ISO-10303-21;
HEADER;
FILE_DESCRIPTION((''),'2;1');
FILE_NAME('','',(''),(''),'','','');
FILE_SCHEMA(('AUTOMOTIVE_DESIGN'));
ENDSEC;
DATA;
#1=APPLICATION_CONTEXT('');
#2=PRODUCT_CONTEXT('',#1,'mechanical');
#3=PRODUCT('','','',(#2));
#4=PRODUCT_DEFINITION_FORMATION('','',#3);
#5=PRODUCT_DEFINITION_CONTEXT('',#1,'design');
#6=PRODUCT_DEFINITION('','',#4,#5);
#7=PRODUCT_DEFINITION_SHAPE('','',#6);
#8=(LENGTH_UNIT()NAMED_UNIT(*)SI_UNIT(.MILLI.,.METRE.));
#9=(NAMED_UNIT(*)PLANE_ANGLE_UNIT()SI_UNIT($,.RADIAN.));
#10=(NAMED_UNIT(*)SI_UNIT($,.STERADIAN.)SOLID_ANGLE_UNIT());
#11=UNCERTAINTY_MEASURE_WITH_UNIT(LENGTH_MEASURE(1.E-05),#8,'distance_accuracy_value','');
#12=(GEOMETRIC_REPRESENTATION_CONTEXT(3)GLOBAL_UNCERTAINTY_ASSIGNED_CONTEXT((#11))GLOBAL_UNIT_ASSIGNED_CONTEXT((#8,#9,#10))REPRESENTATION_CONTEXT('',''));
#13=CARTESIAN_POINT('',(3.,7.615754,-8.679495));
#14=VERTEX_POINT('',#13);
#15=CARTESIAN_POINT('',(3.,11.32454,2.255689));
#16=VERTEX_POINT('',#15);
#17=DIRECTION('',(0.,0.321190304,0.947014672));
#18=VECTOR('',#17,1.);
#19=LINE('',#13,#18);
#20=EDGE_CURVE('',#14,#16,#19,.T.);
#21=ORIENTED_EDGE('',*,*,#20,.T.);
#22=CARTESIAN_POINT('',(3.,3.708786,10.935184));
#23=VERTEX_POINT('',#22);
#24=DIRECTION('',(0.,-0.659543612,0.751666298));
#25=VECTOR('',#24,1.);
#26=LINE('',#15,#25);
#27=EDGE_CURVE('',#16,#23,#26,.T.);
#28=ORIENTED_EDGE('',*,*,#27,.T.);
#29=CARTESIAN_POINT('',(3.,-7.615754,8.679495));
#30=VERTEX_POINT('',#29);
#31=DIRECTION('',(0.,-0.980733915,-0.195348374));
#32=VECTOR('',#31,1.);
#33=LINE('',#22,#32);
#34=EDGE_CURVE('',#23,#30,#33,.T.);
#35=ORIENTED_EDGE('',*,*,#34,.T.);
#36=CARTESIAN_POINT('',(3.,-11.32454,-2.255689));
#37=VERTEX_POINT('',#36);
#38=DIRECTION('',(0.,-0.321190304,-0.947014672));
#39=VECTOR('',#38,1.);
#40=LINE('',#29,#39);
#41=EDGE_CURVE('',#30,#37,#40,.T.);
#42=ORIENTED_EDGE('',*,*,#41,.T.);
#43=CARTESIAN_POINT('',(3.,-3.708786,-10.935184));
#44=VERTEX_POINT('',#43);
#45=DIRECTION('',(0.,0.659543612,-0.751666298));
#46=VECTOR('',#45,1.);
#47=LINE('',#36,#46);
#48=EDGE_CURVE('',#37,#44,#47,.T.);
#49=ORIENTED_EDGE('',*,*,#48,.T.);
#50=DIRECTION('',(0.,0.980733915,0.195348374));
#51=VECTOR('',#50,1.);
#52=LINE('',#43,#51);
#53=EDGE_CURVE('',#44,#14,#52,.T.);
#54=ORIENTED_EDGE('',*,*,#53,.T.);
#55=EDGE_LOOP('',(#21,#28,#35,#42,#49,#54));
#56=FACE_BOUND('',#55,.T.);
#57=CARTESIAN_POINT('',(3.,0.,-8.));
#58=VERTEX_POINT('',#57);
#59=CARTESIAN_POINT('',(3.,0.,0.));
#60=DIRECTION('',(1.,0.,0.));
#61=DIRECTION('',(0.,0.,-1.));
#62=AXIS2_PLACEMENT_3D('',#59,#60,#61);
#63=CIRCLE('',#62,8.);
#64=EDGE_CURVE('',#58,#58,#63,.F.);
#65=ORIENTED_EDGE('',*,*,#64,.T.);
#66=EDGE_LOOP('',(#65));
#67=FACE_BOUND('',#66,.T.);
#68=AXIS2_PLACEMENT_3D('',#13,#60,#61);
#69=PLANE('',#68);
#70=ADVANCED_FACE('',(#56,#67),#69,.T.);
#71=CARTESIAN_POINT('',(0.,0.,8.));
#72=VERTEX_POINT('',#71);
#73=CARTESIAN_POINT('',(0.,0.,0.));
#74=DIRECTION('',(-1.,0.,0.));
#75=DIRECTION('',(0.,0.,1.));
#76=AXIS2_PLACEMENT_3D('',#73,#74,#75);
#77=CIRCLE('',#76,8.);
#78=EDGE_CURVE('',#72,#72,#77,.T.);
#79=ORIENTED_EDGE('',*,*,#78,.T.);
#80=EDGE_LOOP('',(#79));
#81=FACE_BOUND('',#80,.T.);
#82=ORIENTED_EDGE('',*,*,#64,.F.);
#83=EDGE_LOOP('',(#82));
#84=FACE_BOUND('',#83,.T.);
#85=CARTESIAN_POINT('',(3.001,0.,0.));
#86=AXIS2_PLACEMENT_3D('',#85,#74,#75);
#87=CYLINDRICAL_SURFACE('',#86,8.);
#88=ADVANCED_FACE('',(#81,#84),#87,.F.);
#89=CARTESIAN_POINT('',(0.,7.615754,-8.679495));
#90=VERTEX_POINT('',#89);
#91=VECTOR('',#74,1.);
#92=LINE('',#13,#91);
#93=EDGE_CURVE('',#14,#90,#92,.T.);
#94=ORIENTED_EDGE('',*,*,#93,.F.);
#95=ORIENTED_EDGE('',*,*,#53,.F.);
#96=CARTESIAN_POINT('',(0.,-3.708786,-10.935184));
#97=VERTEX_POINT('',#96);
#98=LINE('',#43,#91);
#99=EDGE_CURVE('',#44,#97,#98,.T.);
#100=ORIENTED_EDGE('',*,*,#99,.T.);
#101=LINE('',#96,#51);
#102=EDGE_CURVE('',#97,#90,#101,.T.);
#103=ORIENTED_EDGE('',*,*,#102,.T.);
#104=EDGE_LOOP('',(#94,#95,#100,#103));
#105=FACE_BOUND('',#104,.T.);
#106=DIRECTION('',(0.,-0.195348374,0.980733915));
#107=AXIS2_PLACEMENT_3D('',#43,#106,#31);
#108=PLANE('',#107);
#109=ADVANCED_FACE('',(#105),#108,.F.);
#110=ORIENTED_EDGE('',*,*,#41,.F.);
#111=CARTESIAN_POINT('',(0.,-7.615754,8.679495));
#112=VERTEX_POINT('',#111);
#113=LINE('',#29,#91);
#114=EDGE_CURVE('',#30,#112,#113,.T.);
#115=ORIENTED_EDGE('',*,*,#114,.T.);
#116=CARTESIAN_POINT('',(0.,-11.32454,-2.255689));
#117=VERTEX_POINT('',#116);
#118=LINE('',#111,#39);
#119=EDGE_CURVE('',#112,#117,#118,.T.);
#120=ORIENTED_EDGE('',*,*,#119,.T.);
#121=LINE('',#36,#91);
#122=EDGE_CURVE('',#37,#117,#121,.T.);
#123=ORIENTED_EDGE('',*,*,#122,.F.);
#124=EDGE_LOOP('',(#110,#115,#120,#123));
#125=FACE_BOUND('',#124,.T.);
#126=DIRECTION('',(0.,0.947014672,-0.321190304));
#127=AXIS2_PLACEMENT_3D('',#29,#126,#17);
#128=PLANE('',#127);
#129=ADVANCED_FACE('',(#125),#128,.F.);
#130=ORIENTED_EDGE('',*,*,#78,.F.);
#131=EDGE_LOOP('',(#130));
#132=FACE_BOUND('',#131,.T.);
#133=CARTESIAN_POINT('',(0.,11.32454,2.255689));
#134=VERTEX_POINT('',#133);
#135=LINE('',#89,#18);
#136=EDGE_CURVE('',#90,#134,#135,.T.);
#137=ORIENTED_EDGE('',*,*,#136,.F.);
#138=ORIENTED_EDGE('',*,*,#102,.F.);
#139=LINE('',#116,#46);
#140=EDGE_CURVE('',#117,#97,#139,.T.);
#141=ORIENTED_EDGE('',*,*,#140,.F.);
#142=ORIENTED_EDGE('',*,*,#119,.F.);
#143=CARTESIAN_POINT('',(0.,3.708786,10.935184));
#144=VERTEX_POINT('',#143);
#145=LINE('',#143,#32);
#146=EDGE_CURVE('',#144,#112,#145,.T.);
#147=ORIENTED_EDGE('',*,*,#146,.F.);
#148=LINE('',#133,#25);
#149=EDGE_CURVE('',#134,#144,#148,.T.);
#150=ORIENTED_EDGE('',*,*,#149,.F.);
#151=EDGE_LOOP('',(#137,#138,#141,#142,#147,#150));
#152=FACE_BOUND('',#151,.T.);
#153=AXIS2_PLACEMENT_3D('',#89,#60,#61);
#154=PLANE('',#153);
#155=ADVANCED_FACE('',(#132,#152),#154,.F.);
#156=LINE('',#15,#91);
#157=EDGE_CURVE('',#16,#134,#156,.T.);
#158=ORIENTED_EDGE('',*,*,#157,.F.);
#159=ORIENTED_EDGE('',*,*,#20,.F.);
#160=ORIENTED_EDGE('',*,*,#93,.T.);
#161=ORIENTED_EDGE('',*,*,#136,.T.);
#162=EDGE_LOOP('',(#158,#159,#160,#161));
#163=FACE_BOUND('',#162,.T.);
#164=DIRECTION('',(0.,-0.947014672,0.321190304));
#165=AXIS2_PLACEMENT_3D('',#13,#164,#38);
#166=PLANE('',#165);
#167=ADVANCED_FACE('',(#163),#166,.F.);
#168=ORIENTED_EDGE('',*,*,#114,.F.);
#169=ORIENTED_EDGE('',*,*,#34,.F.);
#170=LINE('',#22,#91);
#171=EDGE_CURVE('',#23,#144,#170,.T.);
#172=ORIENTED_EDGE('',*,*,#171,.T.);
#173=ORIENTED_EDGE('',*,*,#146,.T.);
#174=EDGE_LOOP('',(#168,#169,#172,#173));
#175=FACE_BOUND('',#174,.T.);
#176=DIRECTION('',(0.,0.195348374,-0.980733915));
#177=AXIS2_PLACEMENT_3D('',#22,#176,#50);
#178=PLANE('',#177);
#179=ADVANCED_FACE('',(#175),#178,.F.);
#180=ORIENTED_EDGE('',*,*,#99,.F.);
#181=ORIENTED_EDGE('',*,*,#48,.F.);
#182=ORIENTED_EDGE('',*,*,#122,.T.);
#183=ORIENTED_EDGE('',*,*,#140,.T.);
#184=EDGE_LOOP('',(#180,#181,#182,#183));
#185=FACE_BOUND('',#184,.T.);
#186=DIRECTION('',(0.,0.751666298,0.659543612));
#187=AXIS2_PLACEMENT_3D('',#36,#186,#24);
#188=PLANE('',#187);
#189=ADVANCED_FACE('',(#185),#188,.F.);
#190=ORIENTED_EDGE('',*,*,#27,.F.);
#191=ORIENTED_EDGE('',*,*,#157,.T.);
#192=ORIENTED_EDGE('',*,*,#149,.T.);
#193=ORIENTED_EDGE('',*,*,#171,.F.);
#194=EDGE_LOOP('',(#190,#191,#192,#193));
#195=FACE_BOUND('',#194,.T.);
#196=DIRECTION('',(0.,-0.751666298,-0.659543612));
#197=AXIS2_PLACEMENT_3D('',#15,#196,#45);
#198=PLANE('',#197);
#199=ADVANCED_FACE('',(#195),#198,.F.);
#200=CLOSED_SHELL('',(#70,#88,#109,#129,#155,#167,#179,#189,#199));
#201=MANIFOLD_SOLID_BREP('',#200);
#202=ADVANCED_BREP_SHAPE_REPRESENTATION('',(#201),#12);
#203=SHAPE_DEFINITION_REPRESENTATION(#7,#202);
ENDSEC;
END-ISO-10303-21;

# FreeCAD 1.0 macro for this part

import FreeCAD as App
import Part
import Sketcher
Q = App.Units.Quantity


def add_polygon(sketch, points):
    """Adds a closed chain of lines whose ends are joined by coincident constraints."""
    first, n = sketch.GeometryCount, len(points)
    for a, b in zip(points, points[1:] + points[:1]):
        sketch.addGeometry(Part.LineSegment(App.Vector(*a, 0), App.Vector(*b, 0)), False)
    for i in range(n):
        sketch.addConstraint(Sketcher.Constraint("Coincident", first + i, 2, first + (i + 1) % n, 1))

doc = App.newDocument("Part")
params = doc.addObject("Spreadsheet::Sheet", "Params")
for row, (alias, value) in enumerate([
    ("pad1_length", "3 mm"),
    ("sketch2_diameter", "16 mm"),
], start=1):
    params.set(f"A{row}", alias)
    params.set(f"B{row}", "=" + value)
    params.setAlias(f"B{row}", alias)

body = doc.addObject("PartDesign::Body", "Body")

sketch1 = doc.addObject("Sketcher::SketchObject", "Sketch")
body.addObject(sketch1)
sketch1.AttachmentSupport = (doc.YZ_Plane, [""])
sketch1.MapMode = "FlatFace"
add_polygon(sketch1, [(8, -9), (11, 2), (4, 11), (-8, 9), (-11, -2), (-4, -11)])
sketch1.addConstraint([
    Sketcher.Constraint("Symmetric", 0, 2, 3, 2, -1, 1),
    Sketcher.Constraint("Symmetric", 1, 2, 4, 2, -1, 1),
    Sketcher.Constraint("Symmetric", 2, 2, 5, 2, -1, 1),
    Sketcher.Constraint("Equal", 0, 1),
    Sketcher.Constraint("Equal", 1, 2),
    Sketcher.Constraint("DistanceX", -1, 1, 0, 2, Q("11.32454 mm")),
    Sketcher.Constraint("DistanceY", -1, 1, 0, 2, Q("2.255689 mm")),
    Sketcher.Constraint("DistanceX", 2, 2, 1, 2, Q("11.32454 mm")),
    Sketcher.Constraint("DistanceY", 2, 2, 1, 2, Q("2.255689 mm")),
])
pad1 = doc.addObject("PartDesign::Pad", "Pad")
body.addObject(pad1)
pad1.Profile = sketch1
pad1.setExpression("Length", "Params.pad1_length")

sketch2 = doc.addObject("Sketcher::SketchObject", "Sketch001")
body.addObject(sketch2)
sketch2.AttachmentSupport = (doc.YZ_Plane, [""])
sketch2.MapMode = "FlatFace"
sketch2.addGeometry(Part.Circle(App.Vector(0, 0, 0), App.Vector(0, 0, 1), 8), False)
sketch2.addConstraint([
    Sketcher.Constraint("Coincident", 0, 3, -1, 1),
    Sketcher.Constraint("Diameter", 0, Q("16 mm")),
])
sketch2.setExpression("Constraints[1]", "Params.sketch2_diameter")
pocket1 = doc.addObject("PartDesign::Pocket", "Pocket")
body.addObject(pocket1)
pocket1.Profile = sketch2
pocket1.Type = "UpToFirst"
pocket1.Reversed = True

doc.recompute()
